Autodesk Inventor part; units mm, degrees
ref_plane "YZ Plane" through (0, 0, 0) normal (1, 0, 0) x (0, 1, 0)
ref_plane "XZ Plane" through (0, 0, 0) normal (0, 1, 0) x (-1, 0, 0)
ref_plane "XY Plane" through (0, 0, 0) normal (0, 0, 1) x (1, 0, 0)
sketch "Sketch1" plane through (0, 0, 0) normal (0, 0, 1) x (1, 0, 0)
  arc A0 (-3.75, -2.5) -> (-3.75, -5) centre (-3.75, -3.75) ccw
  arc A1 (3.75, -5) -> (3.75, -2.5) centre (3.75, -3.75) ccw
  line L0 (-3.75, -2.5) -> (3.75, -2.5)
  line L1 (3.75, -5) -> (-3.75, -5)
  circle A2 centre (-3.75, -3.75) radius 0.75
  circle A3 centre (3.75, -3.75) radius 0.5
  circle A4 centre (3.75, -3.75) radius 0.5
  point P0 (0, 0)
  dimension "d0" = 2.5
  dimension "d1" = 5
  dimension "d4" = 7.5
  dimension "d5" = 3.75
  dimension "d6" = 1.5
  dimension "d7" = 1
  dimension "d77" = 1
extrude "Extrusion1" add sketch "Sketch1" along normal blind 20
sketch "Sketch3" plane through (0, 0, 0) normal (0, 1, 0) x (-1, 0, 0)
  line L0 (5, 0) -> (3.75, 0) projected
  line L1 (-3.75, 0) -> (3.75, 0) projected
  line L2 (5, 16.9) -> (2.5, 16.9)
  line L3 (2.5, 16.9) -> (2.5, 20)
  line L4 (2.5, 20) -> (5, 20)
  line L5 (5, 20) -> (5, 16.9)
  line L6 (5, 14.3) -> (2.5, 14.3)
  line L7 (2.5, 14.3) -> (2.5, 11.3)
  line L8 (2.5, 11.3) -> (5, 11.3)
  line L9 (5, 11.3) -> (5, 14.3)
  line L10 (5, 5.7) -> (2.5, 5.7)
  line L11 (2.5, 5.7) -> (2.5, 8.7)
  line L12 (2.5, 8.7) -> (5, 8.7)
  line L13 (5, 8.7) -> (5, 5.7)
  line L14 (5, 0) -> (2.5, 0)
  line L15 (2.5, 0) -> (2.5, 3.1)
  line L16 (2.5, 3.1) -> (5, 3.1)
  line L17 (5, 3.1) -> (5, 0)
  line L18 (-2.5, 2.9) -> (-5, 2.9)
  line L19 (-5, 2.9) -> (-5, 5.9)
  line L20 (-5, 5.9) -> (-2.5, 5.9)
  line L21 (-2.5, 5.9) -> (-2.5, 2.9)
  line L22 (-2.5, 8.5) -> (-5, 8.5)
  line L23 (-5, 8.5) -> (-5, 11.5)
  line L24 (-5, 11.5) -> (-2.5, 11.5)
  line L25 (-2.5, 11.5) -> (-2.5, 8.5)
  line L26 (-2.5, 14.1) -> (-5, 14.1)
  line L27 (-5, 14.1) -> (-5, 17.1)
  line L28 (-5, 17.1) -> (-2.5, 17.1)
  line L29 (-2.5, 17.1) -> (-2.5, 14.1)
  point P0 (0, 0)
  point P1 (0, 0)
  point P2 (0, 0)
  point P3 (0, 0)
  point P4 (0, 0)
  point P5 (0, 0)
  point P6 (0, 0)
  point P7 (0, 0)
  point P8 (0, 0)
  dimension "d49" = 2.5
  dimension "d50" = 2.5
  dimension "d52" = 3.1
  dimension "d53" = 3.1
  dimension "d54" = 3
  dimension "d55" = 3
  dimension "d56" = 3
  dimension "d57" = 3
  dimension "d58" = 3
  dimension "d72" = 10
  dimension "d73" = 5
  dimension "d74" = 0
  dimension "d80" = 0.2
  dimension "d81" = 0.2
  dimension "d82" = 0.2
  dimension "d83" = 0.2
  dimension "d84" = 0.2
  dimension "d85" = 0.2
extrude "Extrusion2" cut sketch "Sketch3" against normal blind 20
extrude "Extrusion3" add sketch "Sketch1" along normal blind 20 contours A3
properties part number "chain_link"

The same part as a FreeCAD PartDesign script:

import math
import FreeCAD as App
import Part
import Sketcher
from FreeCAD import Vector
Q = App.Units.Quantity


def add_polygon(sketch, points):
    """Adds a closed chain of lines whose ends are joined by coincident constraints."""
    first, n = sketch.GeometryCount, len(points)
    for a, b in zip(points, points[1:] + points[:1]):
        sketch.addGeometry(Part.LineSegment(App.Vector(*a, 0), App.Vector(*b, 0)), False)
    for i in range(n):
        sketch.addConstraint(Sketcher.Constraint("Coincident", first + i, 2, first + (i + 1) % n, 1))

doc = App.newDocument("Part")
params = doc.addObject("Spreadsheet::Sheet", "Params")
for row, (alias, value) in enumerate([
    ("sketch1_diameter", "1 mm"),
    ("sketch1_diameter2", "1.5 mm"),
    ("sketch1_radius", "1.25 mm"),
    ("sketch1_width", "7.5 mm"),
    ("pad1_length", "20 mm"),
    ("sketch2_height", "3 mm"),
    ("sketch2_width", "2.5 mm"),
    ("sketch2_height2", "3.1 mm"),
    ("pocket1_length", "20 mm"),
    ("sketch3_diameter", "1 mm"),
    ("pad2_length", "20 mm"),
], start=1):
    params.set(f"A{row}", alias)
    params.set(f"B{row}", "=" + value)
    params.setAlias(f"B{row}", alias)

body = doc.addObject("PartDesign::Body", "Body")

# Sketch on XY plane
sketch1 = body.newObject("Sketcher::SketchObject", "Sketch")
sketch1.AttachmentSupport = (doc.getObject("XY_Plane"), [""])
sketch1.MapMode = "FlatFace"
sketch1.addGeometry(Part.LineSegment(Vector(3.8, -2.5, 0), Vector(-3.8, -2.5, 0)), False)
sketch1.addGeometry(Part.ArcOfCircle(Part.Circle(Vector(-3.8, -3.8, 0), Vector(0, 0, 1), 1.2), math.radians(90), math.radians(270)), False)
sketch1.addGeometry(Part.LineSegment(Vector(-3.8, -5, 0), Vector(3.8, -5, 0)), False)
sketch1.addGeometry(Part.ArcOfCircle(Part.Circle(Vector(3.8, -3.8, 0), Vector(0, 0, 1), 1.2), math.radians(-90), math.radians(90)), False)
sketch1.addGeometry(Part.Circle(Vector(-3.8, -3.8, 0), Vector(0, 0, 1), 0.8), False)
sketch1.addGeometry(Part.Circle(Vector(3.8, -3.8, 0), Vector(0, 0, 1), 0.5), False)
sketch1.addConstraint(Sketcher.Constraint("Tangent", 0, 2, 1, 1))
sketch1.addConstraint(Sketcher.Constraint("Tangent", 1, 2, 2, 1))
sketch1.addConstraint(Sketcher.Constraint("Tangent", 2, 2, 3, 1))
sketch1.addConstraint(Sketcher.Constraint("Tangent", 3, 2, 0, 1))
sketch1.addConstraint(Sketcher.Constraint("Horizontal", 0))
sketch1.addConstraint(Sketcher.Constraint("Horizontal", 2))
sketch1.addConstraint(Sketcher.Constraint("Coincident", 4, 3, 1, 3))
sketch1.addConstraint(Sketcher.Constraint("Coincident", 5, 3, 3, 3))
sketch1.addConstraint(Sketcher.Constraint("Diameter", 5, Q("1 mm")))
sketch1.addConstraint(Sketcher.Constraint("Diameter", 4, Q("1.5 mm")))
sketch1.addConstraint(Sketcher.Constraint("Radius", 1, Q("1.25 mm")))
sketch1.addConstraint(Sketcher.Constraint("DistanceX", 0, 2, 0, 1, Q("7.5 mm")))
sketch1.addConstraint(Sketcher.Constraint("DistanceY", 1, 2, -1, 1, Q("5 mm")))
sketch1.addConstraint(Sketcher.Constraint("DistanceX", 1, 3, -1, 1, Q("3.75 mm")))
sketch1.setExpression("Constraints[8]", "Params.sketch1_diameter")
sketch1.setExpression("Constraints[9]", "Params.sketch1_diameter2")
sketch1.setExpression("Constraints[10]", "Params.sketch1_radius")
sketch1.setExpression("Constraints[11]", "Params.sketch1_width")
pad1 = body.newObject("PartDesign::Pad", "Pad")
pad1.Profile = sketch1
pad1.setExpression("Length", "Params.pad1_length")

# Sketch on XZ plane
sketch2 = body.newObject("Sketcher::SketchObject", "Sketch001")
sketch2.AttachmentSupport = (doc.getObject("XZ_Plane"), [""])
sketch2.MapMode = "FlatFace"
add_polygon(sketch2, [(-2.5, 0), (-5, 0), (-5, 3.1), (-2.5, 3.1)])  # lines 0-3
add_polygon(sketch2, [(-2.5, 16.9), (-5, 16.9), (-5, 20), (-2.5, 20)])  # lines 4-7
add_polygon(sketch2, [(-5, 11.3), (-5, 14.3), (-2.5, 14.3), (-2.5, 11.3)])  # lines 8-11
add_polygon(sketch2, [(-2.5, 5.7), (-5, 5.7), (-5, 8.7), (-2.5, 8.7)])  # lines 12-15
add_polygon(sketch2, [(5, 2.9), (2.5, 2.9), (2.5, 5.9), (5, 5.9)])  # lines 16-19
add_polygon(sketch2, [(5, 8.5), (2.5, 8.5), (2.5, 11.5), (5, 11.5)])  # lines 20-23
add_polygon(sketch2, [(5, 14.1), (2.5, 14.1), (2.5, 17.1), (5, 17.1)])  # lines 24-27
sketch2.addConstraint(Sketcher.Constraint("Horizontal", 0))
sketch2.addConstraint(Sketcher.Constraint("Vertical", 1))
sketch2.addConstraint(Sketcher.Constraint("Horizontal", 2))
sketch2.addConstraint(Sketcher.Constraint("Vertical", 3))
sketch2.addConstraint(Sketcher.Constraint("Horizontal", 4))
sketch2.addConstraint(Sketcher.Constraint("Vertical", 5))
sketch2.addConstraint(Sketcher.Constraint("Horizontal", 6))
sketch2.addConstraint(Sketcher.Constraint("Vertical", 7))
sketch2.addConstraint(Sketcher.Constraint("Vertical", 8))
sketch2.addConstraint(Sketcher.Constraint("Horizontal", 9))
sketch2.addConstraint(Sketcher.Constraint("Vertical", 10))
sketch2.addConstraint(Sketcher.Constraint("Horizontal", 11))
sketch2.addConstraint(Sketcher.Constraint("Horizontal", 12))
sketch2.addConstraint(Sketcher.Constraint("Vertical", 13))
sketch2.addConstraint(Sketcher.Constraint("Horizontal", 14))
sketch2.addConstraint(Sketcher.Constraint("Vertical", 15))
sketch2.addConstraint(Sketcher.Constraint("Horizontal", 16))
sketch2.addConstraint(Sketcher.Constraint("Vertical", 17))
sketch2.addConstraint(Sketcher.Constraint("Horizontal", 18))
sketch2.addConstraint(Sketcher.Constraint("Vertical", 19))
sketch2.addConstraint(Sketcher.Constraint("Horizontal", 20))
sketch2.addConstraint(Sketcher.Constraint("Vertical", 21))
sketch2.addConstraint(Sketcher.Constraint("Horizontal", 22))
sketch2.addConstraint(Sketcher.Constraint("Vertical", 23))
sketch2.addConstraint(Sketcher.Constraint("Horizontal", 24))
sketch2.addConstraint(Sketcher.Constraint("Vertical", 25))
sketch2.addConstraint(Sketcher.Constraint("Horizontal", 26))
sketch2.addConstraint(Sketcher.Constraint("Vertical", 27))
sketch2.addConstraint(Sketcher.Constraint("PointOnObject", 0, 2, -1))
sketch2.addConstraint(Sketcher.Constraint("Vertical", 1, 2, 4, 2))
sketch2.addConstraint(Sketcher.Constraint("Vertical", 3, 2, 6, 2))
sketch2.addConstraint(Sketcher.Constraint("Vertical", 5, 2, 8, 2))
sketch2.addConstraint(Sketcher.Constraint("Vertical", 7, 2, 9, 2))
sketch2.addConstraint(Sketcher.Constraint("Vertical", 11, 2, 12, 2))
sketch2.addConstraint(Sketcher.Constraint("Vertical", 10, 2, 14, 2))
sketch2.addConstraint(Sketcher.Constraint("Vertical", 17, 2, 20, 2))
sketch2.addConstraint(Sketcher.Constraint("Vertical", 19, 2, 22, 2))
sketch2.addConstraint(Sketcher.Constraint("Vertical", 21, 2, 24, 2))
sketch2.addConstraint(Sketcher.Constraint("Vertical", 23, 2, 26, 2))
sketch2.addConstraint(Sketcher.Constraint("Equal", 14, 16))
sketch2.addConstraint(Sketcher.Constraint("Equal", 3, 5))
sketch2.addConstraint(Sketcher.Constraint("Equal", 10, 13))
sketch2.addConstraint(Sketcher.Constraint("Equal", 15, 17))
sketch2.addConstraint(Sketcher.Constraint("Equal", 19, 21))
sketch2.addConstraint(Sketcher.Constraint("Equal", 23, 25))
sketch2.addConstraint(Sketcher.Constraint("DistanceY", 8, 1, 8, 2, Q("3 mm")))
sketch2.addConstraint(Sketcher.Constraint("DistanceX", 0, 2, 0, 1, Q("2.5 mm")))
sketch2.addConstraint(Sketcher.Constraint("DistanceY", 1, 1, 1, 2, Q("3.1 mm")))
sketch2.addConstraint(Sketcher.Constraint("DistanceX", 0, 2, -1, 1, Q("5 mm")))
sketch2.addConstraint(Sketcher.Constraint("DistanceX", -1, 1, 18, 2, Q("5 mm")))
sketch2.addConstraint(Sketcher.Constraint("DistanceY", 16, 2, 2, 2, Q("0.2 mm")))
sketch2.addConstraint(Sketcher.Constraint("DistanceY", 15, 2, 17, 2, Q("0.2 mm")))
sketch2.addConstraint(Sketcher.Constraint("DistanceY", 20, 2, 14, 2, Q("0.2 mm")))
sketch2.addConstraint(Sketcher.Constraint("DistanceY", 10, 2, 21, 2, Q("0.2 mm")))
sketch2.addConstraint(Sketcher.Constraint("DistanceY", 24, 2, 9, 2, Q("0.2 mm")))
sketch2.addConstraint(Sketcher.Constraint("DistanceY", 7, 2, 25, 2, Q("0.2 mm")))
sketch2.setExpression("Constraints[73]", "Params.sketch2_height")
sketch2.setExpression("Constraints[74]", "Params.sketch2_width")
sketch2.setExpression("Constraints[75]", "Params.sketch2_height2")
pocket1 = body.newObject("PartDesign::Pocket", "Pocket")
pocket1.Profile = sketch2
pocket1.setExpression("Length", "Params.pocket1_length")
pocket1.Reversed = True

# Sketch on XY plane
sketch3 = body.newObject("Sketcher::SketchObject", "Sketch002")
sketch3.AttachmentSupport = (doc.getObject("XY_Plane"), [""])
sketch3.MapMode = "FlatFace"
sketch3.addGeometry(Part.Circle(Vector(3.8, -3.8, 0), Vector(0, 0, 1), 0.5), False)
sketch3.addConstraint(Sketcher.Constraint("Diameter", 0, Q("1 mm")))
sketch3.addConstraint(Sketcher.Constraint("DistanceX", -1, 1, 0, 3, Q("3.75 mm")))
sketch3.addConstraint(Sketcher.Constraint("DistanceY", 0, 3, -1, 1, Q("3.75 mm")))
sketch3.setExpression("Constraints[0]", "Params.sketch3_diameter")
pad2 = body.newObject("PartDesign::Pad", "Pad001")
pad2.Profile = sketch3
pad2.setExpression("Length", "Params.pad2_length")

doc.recompute()
